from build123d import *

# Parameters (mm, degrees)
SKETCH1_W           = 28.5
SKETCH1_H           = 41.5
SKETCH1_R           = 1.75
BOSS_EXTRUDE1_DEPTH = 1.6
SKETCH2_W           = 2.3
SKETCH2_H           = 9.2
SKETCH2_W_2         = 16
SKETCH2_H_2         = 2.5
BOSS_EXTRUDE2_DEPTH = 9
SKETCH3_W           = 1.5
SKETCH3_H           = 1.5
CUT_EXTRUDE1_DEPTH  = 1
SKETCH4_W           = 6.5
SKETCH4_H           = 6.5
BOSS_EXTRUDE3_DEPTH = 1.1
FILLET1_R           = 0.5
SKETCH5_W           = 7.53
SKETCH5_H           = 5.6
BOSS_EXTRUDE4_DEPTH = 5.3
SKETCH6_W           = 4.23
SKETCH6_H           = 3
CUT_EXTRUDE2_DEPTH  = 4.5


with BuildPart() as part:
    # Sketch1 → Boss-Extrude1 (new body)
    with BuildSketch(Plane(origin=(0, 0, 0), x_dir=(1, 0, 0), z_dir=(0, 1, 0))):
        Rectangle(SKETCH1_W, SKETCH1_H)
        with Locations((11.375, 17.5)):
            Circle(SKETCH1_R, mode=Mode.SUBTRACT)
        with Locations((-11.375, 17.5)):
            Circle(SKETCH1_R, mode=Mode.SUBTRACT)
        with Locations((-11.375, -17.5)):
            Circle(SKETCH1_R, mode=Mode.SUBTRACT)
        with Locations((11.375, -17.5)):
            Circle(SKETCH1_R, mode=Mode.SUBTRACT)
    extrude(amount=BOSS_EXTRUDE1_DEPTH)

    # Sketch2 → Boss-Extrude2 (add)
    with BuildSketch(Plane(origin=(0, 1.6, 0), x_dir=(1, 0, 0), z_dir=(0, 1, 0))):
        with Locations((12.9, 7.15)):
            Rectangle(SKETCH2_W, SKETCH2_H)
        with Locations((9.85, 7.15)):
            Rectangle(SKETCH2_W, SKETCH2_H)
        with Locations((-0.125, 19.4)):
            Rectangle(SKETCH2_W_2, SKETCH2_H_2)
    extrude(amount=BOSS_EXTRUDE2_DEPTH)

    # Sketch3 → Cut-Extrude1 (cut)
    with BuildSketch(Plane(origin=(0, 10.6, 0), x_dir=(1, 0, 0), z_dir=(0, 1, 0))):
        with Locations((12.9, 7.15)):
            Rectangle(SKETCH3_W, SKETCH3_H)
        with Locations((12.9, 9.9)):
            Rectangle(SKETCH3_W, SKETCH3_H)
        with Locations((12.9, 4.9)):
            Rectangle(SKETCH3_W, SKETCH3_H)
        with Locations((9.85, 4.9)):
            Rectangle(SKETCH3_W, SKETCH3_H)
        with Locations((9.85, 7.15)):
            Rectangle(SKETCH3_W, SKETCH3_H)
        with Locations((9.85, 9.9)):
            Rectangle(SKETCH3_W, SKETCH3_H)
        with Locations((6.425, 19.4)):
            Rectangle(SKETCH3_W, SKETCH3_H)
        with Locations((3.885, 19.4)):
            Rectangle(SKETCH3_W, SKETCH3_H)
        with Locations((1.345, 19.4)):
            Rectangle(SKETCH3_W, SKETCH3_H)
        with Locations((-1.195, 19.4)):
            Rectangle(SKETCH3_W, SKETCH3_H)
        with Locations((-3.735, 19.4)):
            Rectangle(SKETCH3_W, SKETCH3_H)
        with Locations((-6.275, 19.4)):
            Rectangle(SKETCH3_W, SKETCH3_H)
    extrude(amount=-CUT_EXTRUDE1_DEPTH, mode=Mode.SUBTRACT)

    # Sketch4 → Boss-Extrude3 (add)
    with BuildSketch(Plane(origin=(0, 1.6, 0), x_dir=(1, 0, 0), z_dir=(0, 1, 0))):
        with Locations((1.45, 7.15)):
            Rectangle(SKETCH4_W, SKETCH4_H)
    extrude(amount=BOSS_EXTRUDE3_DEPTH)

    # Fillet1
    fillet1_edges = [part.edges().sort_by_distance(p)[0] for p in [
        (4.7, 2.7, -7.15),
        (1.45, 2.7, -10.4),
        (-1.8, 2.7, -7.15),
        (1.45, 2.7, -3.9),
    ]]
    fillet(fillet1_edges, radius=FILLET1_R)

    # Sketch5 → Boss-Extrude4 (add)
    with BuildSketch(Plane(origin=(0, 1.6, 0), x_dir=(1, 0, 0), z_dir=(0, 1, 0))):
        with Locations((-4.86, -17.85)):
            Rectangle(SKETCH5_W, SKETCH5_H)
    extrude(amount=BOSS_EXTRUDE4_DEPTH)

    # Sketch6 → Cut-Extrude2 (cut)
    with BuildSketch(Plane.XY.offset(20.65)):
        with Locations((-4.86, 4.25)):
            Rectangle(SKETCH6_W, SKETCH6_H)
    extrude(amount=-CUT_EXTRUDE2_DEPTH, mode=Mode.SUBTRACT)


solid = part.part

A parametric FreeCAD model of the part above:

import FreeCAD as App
import Part
import Sketcher


def edges_at(feature, points):
    """Names of the edges that pass closest to the given points."""
    edges = feature.Shape.Edges
    near = lambda p: min(range(len(edges)), key=lambda i: edges[i].distToShape(Part.Vertex(*p))[0])
    return sorted({f"Edge{near(p) + 1}" for p in points})


def add_polygon(sketch, points):
    """Adds a closed chain of lines whose ends are joined by coincident constraints."""
    first, n = sketch.GeometryCount, len(points)
    for a, b in zip(points, points[1:] + points[:1]):
        sketch.addGeometry(Part.LineSegment(App.Vector(*a, 0), App.Vector(*b, 0)), False)
    for i in range(n):
        sketch.addConstraint(Sketcher.Constraint("Coincident", first + i, 2, first + (i + 1) % n, 1))

doc = App.newDocument("Part")
body = doc.addObject("PartDesign::Body", "Body")

sketch1 = doc.addObject("Sketcher::SketchObject", "Sketch")
body.addObject(sketch1)
sketch1.AttachmentSupport = (doc.XZ_Plane, [""])
sketch1.MapMode = "FlatFace"
add_polygon(sketch1, [(-14.2, -20.8), (-14.2, 20.8), (14.2, 20.8), (14.2, -20.8)])
sketch1.addGeometry(Part.Circle(App.Vector(-11.4, 17.5, 0), App.Vector(0, 0, 1), 1.8), False)
sketch1.addGeometry(Part.Circle(App.Vector(11.4, 17.5, 0), App.Vector(0, 0, 1), 1.8), False)
sketch1.addGeometry(Part.Circle(App.Vector(-11.4, -17.5, 0), App.Vector(0, 0, 1), 1.8), False)
sketch1.addGeometry(Part.Circle(App.Vector(11.4, -17.5, 0), App.Vector(0, 0, 1), 1.8), False)
sketch1.addConstraint(Sketcher.Constraint("Vertical", 0))
sketch1.addConstraint(Sketcher.Constraint("Horizontal", 1))
sketch1.addConstraint(Sketcher.Constraint("Vertical", 2))
sketch1.addConstraint(Sketcher.Constraint("Horizontal", 3))
sketch1.addConstraint(Sketcher.Constraint("Equal", 4, 5))
sketch1.addConstraint(Sketcher.Constraint("Equal", 5, 6))
sketch1.addConstraint(Sketcher.Constraint("Equal", 6, 7))
sketch1.addConstraint(Sketcher.Constraint("Symmetric", 5, 3, 6, 3, -1, 1))
sketch1.addConstraint(Sketcher.Constraint("Symmetric", 4, 3, 7, 3, -1, 1))
sketch1.addConstraint(Sketcher.Constraint("Symmetric", 0, 2, 2, 2, -1, 1))
sketch1.addConstraint(Sketcher.Constraint("Symmetric", 4, 3, 5, 3, -2))
sketch1.addConstraint(Sketcher.Constraint("Diameter", 4, 3.5))
sketch1.addConstraint(Sketcher.Constraint("DistanceX", 1, 1, 1, 2, 28.5))
sketch1.addConstraint(Sketcher.Constraint("DistanceY", 0, 1, 0, 2, 41.5))
sketch1.addConstraint(Sketcher.Constraint("DistanceY", 6, 3, 4, 3, 35.0))
sketch1.addConstraint(Sketcher.Constraint("DistanceX", 4, 3, 5, 3, 22.75))
pad1 = doc.addObject("PartDesign::Pad", "Pad")
body.addObject(pad1)
pad1.Profile = sketch1
pad1.Length = 1.6
pad1.Reversed = True

sketch2 = doc.addObject("Sketcher::SketchObject", "Sketch001")
body.addObject(sketch2)
sketch2.AttachmentSupport = (doc.XZ_Plane, [""])
sketch2.MapMode = "FlatFace"
sketch2.AttachmentOffset = App.Placement(App.Vector(0, 0, -1.6), App.Rotation())
add_polygon(sketch2, [(11.8, -11.8), (11.8, -2.5), (14.1, -2.5), (14.1, -11.8)])
add_polygon(sketch2, [(8.7, -11.8), (8.7, -2.5), (11, -2.5), (11, -11.8)])
add_polygon(sketch2, [(-8.1, -20.6), (-8.1, -18.1), (7.9, -18.1), (7.9, -20.6)])
sketch2.addConstraint(Sketcher.Constraint("Vertical", 0))
sketch2.addConstraint(Sketcher.Constraint("Horizontal", 1))
sketch2.addConstraint(Sketcher.Constraint("Vertical", 2))
sketch2.addConstraint(Sketcher.Constraint("Horizontal", 3))
sketch2.addConstraint(Sketcher.Constraint("Vertical", 4))
sketch2.addConstraint(Sketcher.Constraint("Horizontal", 5))
sketch2.addConstraint(Sketcher.Constraint("Vertical", 6))
sketch2.addConstraint(Sketcher.Constraint("Horizontal", 7))
sketch2.addConstraint(Sketcher.Constraint("Vertical", 8))
sketch2.addConstraint(Sketcher.Constraint("Horizontal", 9))
sketch2.addConstraint(Sketcher.Constraint("Vertical", 10))
sketch2.addConstraint(Sketcher.Constraint("Horizontal", 11))
sketch2.addConstraint(Sketcher.Constraint("Horizontal", 1, 2, 4, 2))
sketch2.addConstraint(Sketcher.Constraint("Horizontal", 3, 2, 6, 2))
sketch2.addConstraint(Sketcher.Constraint("Equal", 3, 5))
sketch2.addConstraint(Sketcher.Constraint("DistanceX", 9, 1, 9, 2, 16.0))
sketch2.addConstraint(Sketcher.Constraint("DistanceX", 1, 1, 1, 2, 2.3))
sketch2.addConstraint(Sketcher.Constraint("DistanceY", 0, 1, 0, 2, 9.2))
sketch2.addConstraint(Sketcher.Constraint("DistanceY", 8, 1, 8, 2, 2.5))
sketch2.addConstraint(Sketcher.Constraint("DistanceX", -1, 1, 5, 2, 11.0))
sketch2.addConstraint(Sketcher.Constraint("DistanceY", 8, 2, 7, 2, 6.4))
sketch2.addConstraint(Sketcher.Constraint("DistanceX", -1, 1, 0, 2, 11.75))
sketch2.addConstraint(Sketcher.Constraint("DistanceY", 0, 2, -1, 1, 2.55))
sketch2.addConstraint(Sketcher.Constraint("DistanceX", 8, 2, -1, 1, 8.125))
pad2 = doc.addObject("PartDesign::Pad", "Pad001")
body.addObject(pad2)
pad2.Profile = sketch2
pad2.Length = 9
pad2.Reversed = True

sketch3 = doc.addObject("Sketcher::SketchObject", "Sketch002")
body.addObject(sketch3)
sketch3.AttachmentSupport = (doc.XZ_Plane, [""])
sketch3.MapMode = "FlatFace"
sketch3.AttachmentOffset = App.Placement(App.Vector(0, 0, -10.6), App.Rotation())
add_polygon(sketch3, [(12.2, -7.9), (12.2, -6.4), (13.7, -6.4), (13.7, -7.9)])
add_polygon(sketch3, [(12.2, -10.7), (12.2, -9.2), (13.7, -9.2), (13.7, -10.7)])
add_polygon(sketch3, [(12.2, -5.7), (12.2, -4.2), (13.7, -4.2), (13.7, -5.7)])
add_polygon(sketch3, [(9.1, -5.7), (9.1, -4.2), (10.6, -4.2), (10.6, -5.7)])
add_polygon(sketch3, [(9.1, -7.9), (9.1, -6.4), (10.6, -6.4), (10.6, -7.9)])
add_polygon(sketch3, [(9.1, -10.7), (9.1, -9.2), (10.6, -9.2), (10.6, -10.7)])
add_polygon(sketch3, [(5.7, -20.1), (5.7, -18.6), (7.2, -18.6), (7.2, -20.1)])
add_polygon(sketch3, [(3.1, -20.1), (3.1, -18.6), (4.6, -18.6), (4.6, -20.1)])
add_polygon(sketch3, [(0.6, -20.1), (0.6, -18.6), (2.1, -18.6), (2.1, -20.1)])
add_polygon(sketch3, [(-1.9, -20.1), (-1.9, -18.6), (-0.4, -18.6), (-0.4, -20.1)])
add_polygon(sketch3, [(-4.5, -20.1), (-4.5, -18.6), (-3, -18.6), (-3, -20.1)])
add_polygon(sketch3, [(-7, -20.1), (-7, -18.6), (-5.5, -18.6), (-5.5, -20.1)])
sketch3.addConstraint(Sketcher.Constraint("Vertical", 0))
sketch3.addConstraint(Sketcher.Constraint("Horizontal", 1))
sketch3.addConstraint(Sketcher.Constraint("Vertical", 2))
sketch3.addConstraint(Sketcher.Constraint("Horizontal", 3))
sketch3.addConstraint(Sketcher.Constraint("Vertical", 4))
sketch3.addConstraint(Sketcher.Constraint("Horizontal", 5))
sketch3.addConstraint(Sketcher.Constraint("Vertical", 6))
sketch3.addConstraint(Sketcher.Constraint("Horizontal", 7))
sketch3.addConstraint(Sketcher.Constraint("Vertical", 8))
sketch3.addConstraint(Sketcher.Constraint("Horizontal", 9))
sketch3.addConstraint(Sketcher.Constraint("Vertical", 10))
sketch3.addConstraint(Sketcher.Constraint("Horizontal", 11))
sketch3.addConstraint(Sketcher.Constraint("Vertical", 12))
sketch3.addConstraint(Sketcher.Constraint("Horizontal", 13))
sketch3.addConstraint(Sketcher.Constraint("Vertical", 14))
sketch3.addConstraint(Sketcher.Constraint("Horizontal", 15))
sketch3.addConstraint(Sketcher.Constraint("Vertical", 16))
sketch3.addConstraint(Sketcher.Constraint("Horizontal", 17))
sketch3.addConstraint(Sketcher.Constraint("Vertical", 18))
sketch3.addConstraint(Sketcher.Constraint("Horizontal", 19))
sketch3.addConstraint(Sketcher.Constraint("Vertical", 20))
sketch3.addConstraint(Sketcher.Constraint("Horizontal", 21))
sketch3.addConstraint(Sketcher.Constraint("Vertical", 22))
sketch3.addConstraint(Sketcher.Constraint("Horizontal", 23))
sketch3.addConstraint(Sketcher.Constraint("Vertical", 24))
sketch3.addConstraint(Sketcher.Constraint("Horizontal", 25))
sketch3.addConstraint(Sketcher.Constraint("Vertical", 26))
sketch3.addConstraint(Sketcher.Constraint("Horizontal", 27))
sketch3.addConstraint(Sketcher.Constraint("Vertical", 28))
sketch3.addConstraint(Sketcher.Constraint("Horizontal", 29))
sketch3.addConstraint(Sketcher.Constraint("Vertical", 30))
sketch3.addConstraint(Sketcher.Constraint("Horizontal", 31))
sketch3.addConstraint(Sketcher.Constraint("Vertical", 32))
sketch3.addConstraint(Sketcher.Constraint("Horizontal", 33))
sketch3.addConstraint(Sketcher.Constraint("Vertical", 34))
sketch3.addConstraint(Sketcher.Constraint("Horizontal", 35))
sketch3.addConstraint(Sketcher.Constraint("Vertical", 36))
sketch3.addConstraint(Sketcher.Constraint("Horizontal", 37))
sketch3.addConstraint(Sketcher.Constraint("Vertical", 38))
sketch3.addConstraint(Sketcher.Constraint("Horizontal", 39))
sketch3.addConstraint(Sketcher.Constraint("Vertical", 40))
sketch3.addConstraint(Sketcher.Constraint("Horizontal", 41))
sketch3.addConstraint(Sketcher.Constraint("Vertical", 42))
sketch3.addConstraint(Sketcher.Constraint("Horizontal", 43))
sketch3.addConstraint(Sketcher.Constraint("Vertical", 44))
sketch3.addConstraint(Sketcher.Constraint("Horizontal", 45))
sketch3.addConstraint(Sketcher.Constraint("Vertical", 46))
sketch3.addConstraint(Sketcher.Constraint("Horizontal", 47))
sketch3.addConstraint(Sketcher.Constraint("Horizontal", 9, 2, 12, 2))
sketch3.addConstraint(Sketcher.Constraint("Horizontal", 11, 2, 14, 2))
sketch3.addConstraint(Sketcher.Constraint("Horizontal", 1, 2, 16, 2))
sketch3.addConstraint(Sketcher.Constraint("Horizontal", 3, 2, 18, 2))
sketch3.addConstraint(Sketcher.Constraint("Horizontal", 5, 2, 20, 2))
sketch3.addConstraint(Sketcher.Constraint("Horizontal", 7, 2, 22, 2))
sketch3.addConstraint(Sketcher.Constraint("Horizontal", 25, 2, 28, 2))
sketch3.addConstraint(Sketcher.Constraint("Horizontal", 27, 2, 30, 2))
sketch3.addConstraint(Sketcher.Constraint("Horizontal", 29, 2, 32, 2))
sketch3.addConstraint(Sketcher.Constraint("Horizontal", 31, 2, 34, 2))
sketch3.addConstraint(Sketcher.Constraint("Horizontal", 33, 2, 36, 2))
sketch3.addConstraint(Sketcher.Constraint("Horizontal", 35, 2, 38, 2))
sketch3.addConstraint(Sketcher.Constraint("Horizontal", 37, 2, 40, 2))
sketch3.addConstraint(Sketcher.Constraint("Horizontal", 39, 2, 42, 2))
sketch3.addConstraint(Sketcher.Constraint("Horizontal", 41, 2, 44, 2))
sketch3.addConstraint(Sketcher.Constraint("Horizontal", 43, 2, 46, 2))
sketch3.addConstraint(Sketcher.Constraint("Vertical", 3, 2, 4, 2))
sketch3.addConstraint(Sketcher.Constraint("Vertical", 2, 2, 5, 2))
sketch3.addConstraint(Sketcher.Constraint("Vertical", 7, 2, 8, 2))
sketch3.addConstraint(Sketcher.Constraint("Vertical", 6, 2, 9, 2))
sketch3.addConstraint(Sketcher.Constraint("Vertical", 15, 2, 16, 2))
sketch3.addConstraint(Sketcher.Constraint("Vertical", 14, 2, 17, 2))
sketch3.addConstraint(Sketcher.Constraint("Vertical", 19, 2, 20, 2))
sketch3.addConstraint(Sketcher.Constraint("Vertical", 18, 2, 21, 2))
sketch3.addConstraint(Sketcher.Constraint("Equal", 11, 13))
sketch3.addConstraint(Sketcher.Constraint("Equal", 23, 25))
sketch3.addConstraint(Sketcher.Constraint("Equal", 27, 29))
sketch3.addConstraint(Sketcher.Constraint("Equal", 31, 33))
sketch3.addConstraint(Sketcher.Constraint("Equal", 35, 37))
sketch3.addConstraint(Sketcher.Constraint("Equal", 39, 41))
sketch3.addConstraint(Sketcher.Constraint("Equal", 43, 45))
sketch3.addConstraint(Sketcher.Constraint("Equal", 47, 0))
sketch3.addConstraint(Sketcher.Constraint("Equal", 2, 4))
sketch3.addConstraint(Sketcher.Constraint("Equal", 6, 8))
sketch3.addConstraint(Sketcher.Constraint("Equal", 22, 24))
sketch3.addConstraint(Sketcher.Constraint("DistanceX", 1, 1, 1, 2, 1.5))
sketch3.addConstraint(Sketcher.Constraint("DistanceY", 4, 2, 8, 2, 5.0))
sketch3.addConstraint(Sketcher.Constraint("DistanceY", 24, 2, 23, 2, 8.0))
sketch3.addConstraint(Sketcher.Constraint("DistanceY", 0, 2, -1, 1, 6.4))
sketch3.addConstraint(Sketcher.Constraint("DistanceX", -1, 1, 12, 2, 9.1))
sketch3.addConstraint(Sketcher.Constraint("DistanceX", -1, 1, 0, 2, 12.15))
sketch3.addConstraint(Sketcher.Constraint("DistanceY", 4, 2, -1, 1, 9.15))
sketch3.addConstraint(Sketcher.Constraint("DistanceX", 28, 2, 24, 2, 2.54))
sketch3.addConstraint(Sketcher.Constraint("DistanceX", 32, 2, 28, 2, 2.54))
sketch3.addConstraint(Sketcher.Constraint("DistanceX", 36, 2, 32, 2, 2.54))
sketch3.addConstraint(Sketcher.Constraint("DistanceX", 40, 2, 36, 2, 2.54))
sketch3.addConstraint(Sketcher.Constraint("DistanceX", 44, 2, 40, 2, 2.54))
sketch3.addConstraint(Sketcher.Constraint("DistanceX", -1, 1, 24, 2, 5.675))
pocket1 = doc.addObject("PartDesign::Pocket", "Pocket")
body.addObject(pocket1)
pocket1.Profile = sketch3
pocket1.Length = 1
pocket1.Reversed = True

sketch4 = doc.addObject("Sketcher::SketchObject", "Sketch003")
body.addObject(sketch4)
sketch4.AttachmentSupport = (doc.XZ_Plane, [""])
sketch4.MapMode = "FlatFace"
sketch4.AttachmentOffset = App.Placement(App.Vector(0, 0, -1.6), App.Rotation())
add_polygon(sketch4, [(-2, -10), (-2, -4), (5, -4), (5, -10)])
sketch4.addConstraint(Sketcher.Constraint("Vertical", 0))
sketch4.addConstraint(Sketcher.Constraint("Horizontal", 1))
sketch4.addConstraint(Sketcher.Constraint("Vertical", 2))
sketch4.addConstraint(Sketcher.Constraint("Horizontal", 3))
sketch4.addConstraint(Sketcher.Constraint("Equal", 3, 0))
sketch4.addConstraint(Sketcher.Constraint("DistanceX", 1, 1, 1, 2, 6.5))
sketch4.addConstraint(Sketcher.Constraint("DistanceX", 0, 2, -1, 1, 1.8))
sketch4.addConstraint(Sketcher.Constraint("DistanceY", 0, 2, -1, 1, 3.9))
pad3 = doc.addObject("PartDesign::Pad", "Pad002")
body.addObject(pad3)
pad3.Profile = sketch4
pad3.Length = 1.1
pad3.Reversed = True
doc.recompute()

fillet = doc.addObject("PartDesign::Fillet", "Fillet")
body.addObject(fillet)
fillet.Base = (pad3, edges_at(pad3, [
    (4.7, 2.7, -7.15),
    (1.45, 2.7, -10.4),
    (-1.8, 2.7, -7.15),
    (1.45, 2.7, -3.9),
]))
fillet.Radius = 0.5

sketch5 = doc.addObject("Sketcher::SketchObject", "Sketch004")
body.addObject(sketch5)
sketch5.AttachmentSupport = (doc.XZ_Plane, [""])
sketch5.MapMode = "FlatFace"
sketch5.AttachmentOffset = App.Placement(App.Vector(0, 0, -1.6), App.Rotation())
add_polygon(sketch5, [(-9, 15), (-9, 21), (-1, 21), (-1, 15)])
sketch5.addConstraint(Sketcher.Constraint("Vertical", 0))
sketch5.addConstraint(Sketcher.Constraint("Horizontal", 1))
sketch5.addConstraint(Sketcher.Constraint("Vertical", 2))
sketch5.addConstraint(Sketcher.Constraint("Horizontal", 3))
sketch5.addConstraint(Sketcher.Constraint("DistanceY", 0, 1, 0, 2, 5.6))
sketch5.addConstraint(Sketcher.Constraint("DistanceX", 1, 1, 1, 2, 7.53))
sketch5.addConstraint(Sketcher.Constraint("DistanceY", -1, 1, 0, 2, 20.65))
sketch5.addConstraint(Sketcher.Constraint("DistanceX", 0, 2, -1, 1, 8.625))
pad4 = doc.addObject("PartDesign::Pad", "Pad003")
body.addObject(pad4)
pad4.Profile = sketch5
pad4.Length = 5.3
pad4.Reversed = True

sketch6 = doc.addObject("Sketcher::SketchObject", "Sketch005")
body.addObject(sketch6)
sketch6.AttachmentSupport = (doc.XY_Plane, [""])
sketch6.MapMode = "FlatFace"
sketch6.AttachmentOffset = App.Placement(App.Vector(0, 0, 20.65), App.Rotation())
add_polygon(sketch6, [(-7, 5.8), (-7, 2.8), (-2.7, 2.8), (-2.7, 5.8)])
sketch6.addConstraint(Sketcher.Constraint("Vertical", 0))
sketch6.addConstraint(Sketcher.Constraint("Horizontal", 1))
sketch6.addConstraint(Sketcher.Constraint("Vertical", 2))
sketch6.addConstraint(Sketcher.Constraint("Horizontal", 3))
sketch6.addConstraint(Sketcher.Constraint("DistanceY", 0, 2, 0, 1, 3.0))
sketch6.addConstraint(Sketcher.Constraint("DistanceX", 1, 1, 1, 2, 4.23))
sketch6.addConstraint(Sketcher.Constraint("DistanceY", -1, 1, 0, 2, 2.75))
sketch6.addConstraint(Sketcher.Constraint("DistanceX", 0, 2, -1, 1, 6.975))
pocket2 = doc.addObject("PartDesign::Pocket", "Pocket001")
body.addObject(pocket2)
pocket2.Profile = sketch6
pocket2.Length = 4.5

doc.recompute()
